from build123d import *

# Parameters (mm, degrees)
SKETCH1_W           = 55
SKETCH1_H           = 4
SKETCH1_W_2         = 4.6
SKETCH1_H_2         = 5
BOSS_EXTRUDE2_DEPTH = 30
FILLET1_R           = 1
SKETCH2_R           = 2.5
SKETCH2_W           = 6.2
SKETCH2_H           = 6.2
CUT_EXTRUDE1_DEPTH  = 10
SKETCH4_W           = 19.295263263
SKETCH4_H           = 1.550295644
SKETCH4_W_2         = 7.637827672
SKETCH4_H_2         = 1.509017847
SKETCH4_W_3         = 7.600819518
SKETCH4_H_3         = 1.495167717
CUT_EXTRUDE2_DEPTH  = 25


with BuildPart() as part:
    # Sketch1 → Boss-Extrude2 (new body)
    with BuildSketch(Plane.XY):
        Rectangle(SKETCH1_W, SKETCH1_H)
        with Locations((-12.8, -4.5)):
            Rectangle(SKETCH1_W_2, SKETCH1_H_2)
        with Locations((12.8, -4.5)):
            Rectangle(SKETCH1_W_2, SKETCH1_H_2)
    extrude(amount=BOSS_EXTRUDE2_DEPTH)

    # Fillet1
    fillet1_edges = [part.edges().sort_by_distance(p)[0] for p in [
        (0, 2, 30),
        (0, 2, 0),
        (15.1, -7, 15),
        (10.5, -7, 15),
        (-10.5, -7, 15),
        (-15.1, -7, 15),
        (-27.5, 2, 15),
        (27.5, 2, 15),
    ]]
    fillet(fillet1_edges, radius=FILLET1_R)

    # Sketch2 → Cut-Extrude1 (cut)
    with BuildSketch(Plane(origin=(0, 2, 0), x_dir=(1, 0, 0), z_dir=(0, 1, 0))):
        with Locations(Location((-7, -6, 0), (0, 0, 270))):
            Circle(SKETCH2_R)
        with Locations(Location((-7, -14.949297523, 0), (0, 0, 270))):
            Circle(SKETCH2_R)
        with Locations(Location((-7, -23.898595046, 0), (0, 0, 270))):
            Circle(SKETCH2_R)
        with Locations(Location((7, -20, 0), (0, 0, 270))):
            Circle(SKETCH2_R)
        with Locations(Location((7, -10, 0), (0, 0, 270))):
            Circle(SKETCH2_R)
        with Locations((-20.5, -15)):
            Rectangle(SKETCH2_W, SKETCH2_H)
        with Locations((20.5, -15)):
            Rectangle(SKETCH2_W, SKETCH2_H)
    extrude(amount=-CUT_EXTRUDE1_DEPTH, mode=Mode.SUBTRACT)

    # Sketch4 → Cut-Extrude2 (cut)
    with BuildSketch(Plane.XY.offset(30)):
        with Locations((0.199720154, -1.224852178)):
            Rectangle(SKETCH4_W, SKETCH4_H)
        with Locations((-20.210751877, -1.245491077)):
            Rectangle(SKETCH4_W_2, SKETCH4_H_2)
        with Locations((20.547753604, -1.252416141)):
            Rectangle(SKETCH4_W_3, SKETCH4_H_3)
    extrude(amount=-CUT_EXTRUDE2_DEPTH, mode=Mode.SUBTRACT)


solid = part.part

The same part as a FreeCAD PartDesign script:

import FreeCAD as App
import Part
import Sketcher
from FreeCAD import Vector
Q = App.Units.Quantity


def edges_at(feature, points):
    """Names of the edges that pass closest to the given points."""
    edges = feature.Shape.Edges
    near = lambda p: min(range(len(edges)), key=lambda i: edges[i].distToShape(Part.Vertex(*p))[0])
    return sorted({f"Edge{near(p) + 1}" for p in points})


def add_polygon(sketch, points):
    """Adds a closed chain of lines whose ends are joined by coincident constraints."""
    first, n = sketch.GeometryCount, len(points)
    for a, b in zip(points, points[1:] + points[:1]):
        sketch.addGeometry(Part.LineSegment(App.Vector(*a, 0), App.Vector(*b, 0)), False)
    for i in range(n):
        sketch.addConstraint(Sketcher.Constraint("Coincident", first + i, 2, first + (i + 1) % n, 1))

doc = App.newDocument("Part")
body = doc.addObject("PartDesign::Body", "Body")

# Sketch on XY plane
sketch1 = body.newObject("Sketcher::SketchObject", "Sketch")
sketch1.AttachmentSupport = (doc.getObject("XY_Plane"), [""])
sketch1.MapMode = "FlatFace"
add_polygon(sketch1, [(-27.5, 2), (-27.5, -2), (-15.1, -2), (-15.1, -7), (-10.5, -7), (-10.5, -2), (10.5, -2), (10.5, -7), (15.1, -7), (15.1, -2), (27.5, -2), (27.5, 2)])  # lines 0-11
sketch1.addConstraint([
    Sketcher.Constraint("Vertical", 0),
    Sketcher.Constraint("Horizontal", 1),
    Sketcher.Constraint("Vertical", 2),
    Sketcher.Constraint("Horizontal", 3),
    Sketcher.Constraint("Vertical", 4),
    Sketcher.Constraint("Horizontal", 5),
    Sketcher.Constraint("Vertical", 6),
    Sketcher.Constraint("Horizontal", 7),
    Sketcher.Constraint("Vertical", 8),
    Sketcher.Constraint("Horizontal", 9),
    Sketcher.Constraint("Vertical", 10),
    Sketcher.Constraint("Horizontal", 11),
    Sketcher.Constraint("Symmetric", 0, 2, 10, 2, -1, 1),
    Sketcher.Constraint("Symmetric", 3, 2, 6, 2, -2),
    Sketcher.Constraint("Symmetric", 1, 2, 8, 2, -2),
    Sketcher.Constraint("Horizontal", 1, 2, 4, 2),
    Sketcher.Constraint("DistanceX", 5, 1, 5, 2, Q("21 mm")),
    Sketcher.Constraint("DistanceX", 11, 2, 11, 1, Q("55 mm")),
    Sketcher.Constraint("DistanceY", 0, 2, 0, 1, Q("4 mm")),
    Sketcher.Constraint("DistanceY", 2, 2, 2, 1, Q("5 mm")),
    Sketcher.Constraint("DistanceX", 1, 1, 1, 2, Q("12.4 mm")),
])
pad1 = body.newObject("PartDesign::Pad", "Pad")
pad1.Profile = sketch1
pad1.Length = 30
doc.recompute()

fillet = body.newObject("PartDesign::Fillet", "Fillet")
fillet.Base = (pad1, edges_at(pad1, [
    (0, 2, 30),
    (0, 2, 0),
    (15.1, -7, 15),
    (10.5, -7, 15),
    (-10.5, -7, 15),
    (-15.1, -7, 15),
    (-27.5, 2, 15),
    (27.5, 2, 15),
]))
fillet.Radius = 1

# Sketch on XZ plane
sketch2 = body.newObject("Sketcher::SketchObject", "Sketch001")
sketch2.AttachmentSupport = (doc.getObject("XZ_Plane"), [""])
sketch2.MapMode = "FlatFace"
sketch2.AttachmentOffset = App.Placement(Vector(0, 0, -2), App.Rotation())
sketch2.addGeometry(Part.Circle(Vector(-7, 6, 0), Vector(0, 0, 1), 2.5), False)  # 0
sketch2.addGeometry(Part.Circle(Vector(-7, 14.9, 0), Vector(0, 0, 1), 2.5), False)  # 1
sketch2.addGeometry(Part.Circle(Vector(-7, 23.9, 0), Vector(0, 0, 1), 2.5), False)  # 2
sketch2.addGeometry(Part.Circle(Vector(7, 20, 0), Vector(0, 0, 1), 2.5), False)  # 3
sketch2.addGeometry(Part.Circle(Vector(7, 10, 0), Vector(0, 0, 1), 2.5), False)  # 4
add_polygon(sketch2, [(-23.6, 11.9), (-23.6, 18.1), (-17.4, 18.1), (-17.4, 11.9)])  # lines 5-8
add_polygon(sketch2, [(17.4, 11.9), (17.4, 18.1), (23.6, 18.1), (23.6, 11.9)])  # lines 9-12
sketch2.addConstraint([
    Sketcher.Constraint("Vertical", 5),
    Sketcher.Constraint("Horizontal", 6),
    Sketcher.Constraint("Vertical", 7),
    Sketcher.Constraint("Horizontal", 8),
    Sketcher.Constraint("Vertical", 9),
    Sketcher.Constraint("Horizontal", 10),
    Sketcher.Constraint("Vertical", 11),
    Sketcher.Constraint("Horizontal", 12),
    Sketcher.Constraint("Equal", 0, 1),
    Sketcher.Constraint("Equal", 1, 2),
    Sketcher.Constraint("Equal", 2, 3),
    Sketcher.Constraint("Equal", 3, 4),
    Sketcher.Constraint("Symmetric", 6, 2, 9, 2, -2),
    Sketcher.Constraint("Symmetric", 8, 2, 11, 2, -2),
    Sketcher.Constraint("Vertical", 0, 3, 1, 3),
    Sketcher.Constraint("Vertical", 1, 3, 2, 3),
    Sketcher.Constraint("Vertical", 3, 3, 4, 3),
    Sketcher.Constraint("Equal", 12, 5),
    Sketcher.Constraint("Diameter", 0, Q("5 mm")),
    Sketcher.Constraint("DistanceX", 6, 1, 6, 2, Q("6.2 mm")),
    Sketcher.Constraint("DistanceX", 0, 3, -1, 1, Q("7 mm")),
    Sketcher.Constraint("DistanceY", -1, 1, 0, 3, Q("6 mm")),
    Sketcher.Constraint("DistanceX", -1, 1, 3, 3, Q("7 mm")),
    Sketcher.Constraint("DistanceY", -1, 1, 3, 3, Q("20 mm")),
    Sketcher.Constraint("DistanceY", -1, 1, 4, 3, Q("10 mm")),
    Sketcher.Constraint("DistanceX", 5, 2, -1, 1, Q("23.6 mm")),
    Sketcher.Constraint("DistanceY", -1, 1, 5, 2, Q("18.1 mm")),
    Sketcher.Constraint("DistanceY", -1, 1, 1, 3, Q("14.949298 mm")),
    Sketcher.Constraint("DistanceY", -1, 1, 2, 3, Q("23.898595 mm")),
])
pocket1 = body.newObject("PartDesign::Pocket", "Pocket")
pocket1.Profile = sketch2
pocket1.Length = 10
pocket1.Reversed = True

# Sketch on XY plane
sketch3 = body.newObject("Sketcher::SketchObject", "Sketch002")
sketch3.AttachmentSupport = (doc.getObject("XY_Plane"), [""])
sketch3.MapMode = "FlatFace"
sketch3.AttachmentOffset = App.Placement(Vector(0, 0, 30), App.Rotation())
add_polygon(sketch3, [(-9.4, -0.4), (-9.4, -2), (9.8, -2), (9.8, -0.4)])  # lines 0-3
add_polygon(sketch3, [(-24, -0.5), (-24, -2), (-16.4, -2), (-16.4, -0.5)])  # lines 4-7
add_polygon(sketch3, [(16.7, -0.5), (16.7, -2), (24.3, -2), (24.3, -0.5)])  # lines 8-11
sketch3.addConstraint([
    Sketcher.Constraint("Vertical", 0),
    Sketcher.Constraint("Horizontal", 1),
    Sketcher.Constraint("Vertical", 2),
    Sketcher.Constraint("Horizontal", 3),
    Sketcher.Constraint("Vertical", 4),
    Sketcher.Constraint("Horizontal", 5),
    Sketcher.Constraint("Vertical", 6),
    Sketcher.Constraint("Horizontal", 7),
    Sketcher.Constraint("Vertical", 8),
    Sketcher.Constraint("Horizontal", 9),
    Sketcher.Constraint("Vertical", 10),
    Sketcher.Constraint("Horizontal", 11),
    Sketcher.Constraint("Horizontal", 1, 2, 4, 2),
    Sketcher.Constraint("Horizontal", 5, 2, 8, 2),
    Sketcher.Constraint("DistanceY", 0, 2, -1, 1, Q("2 mm")),
    Sketcher.Constraint("DistanceX", 9, 1, 9, 2, Q("7.60082 mm")),
    Sketcher.Constraint("DistanceX", 1, 1, 1, 2, Q("19.295263 mm")),
    Sketcher.Constraint("DistanceX", 5, 1, 5, 2, Q("7.637828 mm")),
    Sketcher.Constraint("DistanceY", 0, 2, 0, 1, Q("1.550296 mm")),
    Sketcher.Constraint("DistanceY", 4, 2, 4, 1, Q("1.509018 mm")),
    Sketcher.Constraint("DistanceY", 8, 2, 8, 1, Q("1.495168 mm")),
    Sketcher.Constraint("DistanceX", 0, 2, -1, 1, Q("9.447911 mm")),
    Sketcher.Constraint("DistanceX", 5, 2, -1, 1, Q("16.391838 mm")),
    Sketcher.Constraint("DistanceX", 5, 2, 8, 2, Q("33.139182 mm")),
])
pocket2 = body.newObject("PartDesign::Pocket", "Pocket001")
pocket2.Profile = sketch3
pocket2.Length = 25

doc.recompute()
